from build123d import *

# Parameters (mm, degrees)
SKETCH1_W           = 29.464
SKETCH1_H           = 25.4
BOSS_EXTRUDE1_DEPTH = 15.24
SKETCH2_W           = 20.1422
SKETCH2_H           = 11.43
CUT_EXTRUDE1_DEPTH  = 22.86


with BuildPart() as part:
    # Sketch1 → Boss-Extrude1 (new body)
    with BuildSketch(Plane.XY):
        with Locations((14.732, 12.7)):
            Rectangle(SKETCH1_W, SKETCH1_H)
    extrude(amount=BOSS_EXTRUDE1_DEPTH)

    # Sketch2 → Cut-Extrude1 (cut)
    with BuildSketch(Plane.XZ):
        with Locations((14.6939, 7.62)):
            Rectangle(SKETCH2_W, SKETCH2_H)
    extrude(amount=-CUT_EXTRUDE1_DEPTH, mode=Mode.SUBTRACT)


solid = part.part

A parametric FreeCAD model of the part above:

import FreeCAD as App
import Part
import Sketcher

V = App.Vector
Q = App.Units.Quantity

doc = App.newDocument("Part")
body = doc.addObject("PartDesign::Body", "Body")

sketch1 = body.newObject("Sketcher::SketchObject", "Sketch")
sketch1.AttachmentSupport = (doc.getObject("XY_Plane"), [""])
sketch1.MapMode = "FlatFace"
sketch1.addGeometry([
    Part.LineSegment(V(0, 25, 0), V(0, 0, 0)),
    Part.LineSegment(V(0, 0, 0), V(29, 0, 0)),
    Part.LineSegment(V(29, 0, 0), V(29, 25, 0)),
    Part.LineSegment(V(29, 25, 0), V(0, 25, 0)),
], False)
sketch1.addConstraint([
    Sketcher.Constraint("Coincident", 0, 2, 1, 1),
    Sketcher.Constraint("Coincident", 1, 2, 2, 1),
    Sketcher.Constraint("Coincident", 2, 2, 3, 1),
    Sketcher.Constraint("Coincident", 3, 2, 0, 1),
    Sketcher.Constraint("Vertical", 0),
    Sketcher.Constraint("Horizontal", 1),
    Sketcher.Constraint("Vertical", 2),
    Sketcher.Constraint("Horizontal", 3),
    Sketcher.Constraint("Coincident", 0, 2, -1, 1),
    Sketcher.Constraint("DistanceY", 0, 2, 0, 1, Q("1 in")),
    Sketcher.Constraint("DistanceX", 1, 1, 1, 2, Q("1.16 in")),
])
pad1 = body.newObject("PartDesign::Pad", "Pad")
pad1.Profile = sketch1
pad1.Length = Q("0.6 in")

sketch2 = body.newObject("Sketcher::SketchObject", "Sketch001")
sketch2.AttachmentSupport = (doc.getObject("XZ_Plane"), [""])
sketch2.MapMode = "FlatFace"
sketch2.addGeometry([
    Part.LineSegment(V(5, 13, 0), V(5, 2, 0)),
    Part.LineSegment(V(5, 2, 0), V(25, 2, 0)),
    Part.LineSegment(V(25, 2, 0), V(25, 13, 0)),
    Part.LineSegment(V(25, 13, 0), V(5, 13, 0)),
], False)
sketch2.addConstraint([
    Sketcher.Constraint("Coincident", 0, 2, 1, 1),
    Sketcher.Constraint("Coincident", 1, 2, 2, 1),
    Sketcher.Constraint("Coincident", 2, 2, 3, 1),
    Sketcher.Constraint("Coincident", 3, 2, 0, 1),
    Sketcher.Constraint("Vertical", 0),
    Sketcher.Constraint("Horizontal", 1),
    Sketcher.Constraint("Vertical", 2),
    Sketcher.Constraint("Horizontal", 3),
    Sketcher.Constraint("DistanceY", 0, 2, 0, 1, Q("0.45 in")),
    Sketcher.Constraint("DistanceX", 1, 1, 1, 2, Q("0.793 in")),
    Sketcher.Constraint("DistanceX", -1, 1, 0, 2, Q("0.182 in")),
    Sketcher.Constraint("DistanceY", -1, 1, 0, 2, Q("0.075 in")),
])
pocket1 = body.newObject("PartDesign::Pocket", "Pocket")
pocket1.Profile = sketch2
pocket1.Length = Q("0.9 in")

doc.recompute()
